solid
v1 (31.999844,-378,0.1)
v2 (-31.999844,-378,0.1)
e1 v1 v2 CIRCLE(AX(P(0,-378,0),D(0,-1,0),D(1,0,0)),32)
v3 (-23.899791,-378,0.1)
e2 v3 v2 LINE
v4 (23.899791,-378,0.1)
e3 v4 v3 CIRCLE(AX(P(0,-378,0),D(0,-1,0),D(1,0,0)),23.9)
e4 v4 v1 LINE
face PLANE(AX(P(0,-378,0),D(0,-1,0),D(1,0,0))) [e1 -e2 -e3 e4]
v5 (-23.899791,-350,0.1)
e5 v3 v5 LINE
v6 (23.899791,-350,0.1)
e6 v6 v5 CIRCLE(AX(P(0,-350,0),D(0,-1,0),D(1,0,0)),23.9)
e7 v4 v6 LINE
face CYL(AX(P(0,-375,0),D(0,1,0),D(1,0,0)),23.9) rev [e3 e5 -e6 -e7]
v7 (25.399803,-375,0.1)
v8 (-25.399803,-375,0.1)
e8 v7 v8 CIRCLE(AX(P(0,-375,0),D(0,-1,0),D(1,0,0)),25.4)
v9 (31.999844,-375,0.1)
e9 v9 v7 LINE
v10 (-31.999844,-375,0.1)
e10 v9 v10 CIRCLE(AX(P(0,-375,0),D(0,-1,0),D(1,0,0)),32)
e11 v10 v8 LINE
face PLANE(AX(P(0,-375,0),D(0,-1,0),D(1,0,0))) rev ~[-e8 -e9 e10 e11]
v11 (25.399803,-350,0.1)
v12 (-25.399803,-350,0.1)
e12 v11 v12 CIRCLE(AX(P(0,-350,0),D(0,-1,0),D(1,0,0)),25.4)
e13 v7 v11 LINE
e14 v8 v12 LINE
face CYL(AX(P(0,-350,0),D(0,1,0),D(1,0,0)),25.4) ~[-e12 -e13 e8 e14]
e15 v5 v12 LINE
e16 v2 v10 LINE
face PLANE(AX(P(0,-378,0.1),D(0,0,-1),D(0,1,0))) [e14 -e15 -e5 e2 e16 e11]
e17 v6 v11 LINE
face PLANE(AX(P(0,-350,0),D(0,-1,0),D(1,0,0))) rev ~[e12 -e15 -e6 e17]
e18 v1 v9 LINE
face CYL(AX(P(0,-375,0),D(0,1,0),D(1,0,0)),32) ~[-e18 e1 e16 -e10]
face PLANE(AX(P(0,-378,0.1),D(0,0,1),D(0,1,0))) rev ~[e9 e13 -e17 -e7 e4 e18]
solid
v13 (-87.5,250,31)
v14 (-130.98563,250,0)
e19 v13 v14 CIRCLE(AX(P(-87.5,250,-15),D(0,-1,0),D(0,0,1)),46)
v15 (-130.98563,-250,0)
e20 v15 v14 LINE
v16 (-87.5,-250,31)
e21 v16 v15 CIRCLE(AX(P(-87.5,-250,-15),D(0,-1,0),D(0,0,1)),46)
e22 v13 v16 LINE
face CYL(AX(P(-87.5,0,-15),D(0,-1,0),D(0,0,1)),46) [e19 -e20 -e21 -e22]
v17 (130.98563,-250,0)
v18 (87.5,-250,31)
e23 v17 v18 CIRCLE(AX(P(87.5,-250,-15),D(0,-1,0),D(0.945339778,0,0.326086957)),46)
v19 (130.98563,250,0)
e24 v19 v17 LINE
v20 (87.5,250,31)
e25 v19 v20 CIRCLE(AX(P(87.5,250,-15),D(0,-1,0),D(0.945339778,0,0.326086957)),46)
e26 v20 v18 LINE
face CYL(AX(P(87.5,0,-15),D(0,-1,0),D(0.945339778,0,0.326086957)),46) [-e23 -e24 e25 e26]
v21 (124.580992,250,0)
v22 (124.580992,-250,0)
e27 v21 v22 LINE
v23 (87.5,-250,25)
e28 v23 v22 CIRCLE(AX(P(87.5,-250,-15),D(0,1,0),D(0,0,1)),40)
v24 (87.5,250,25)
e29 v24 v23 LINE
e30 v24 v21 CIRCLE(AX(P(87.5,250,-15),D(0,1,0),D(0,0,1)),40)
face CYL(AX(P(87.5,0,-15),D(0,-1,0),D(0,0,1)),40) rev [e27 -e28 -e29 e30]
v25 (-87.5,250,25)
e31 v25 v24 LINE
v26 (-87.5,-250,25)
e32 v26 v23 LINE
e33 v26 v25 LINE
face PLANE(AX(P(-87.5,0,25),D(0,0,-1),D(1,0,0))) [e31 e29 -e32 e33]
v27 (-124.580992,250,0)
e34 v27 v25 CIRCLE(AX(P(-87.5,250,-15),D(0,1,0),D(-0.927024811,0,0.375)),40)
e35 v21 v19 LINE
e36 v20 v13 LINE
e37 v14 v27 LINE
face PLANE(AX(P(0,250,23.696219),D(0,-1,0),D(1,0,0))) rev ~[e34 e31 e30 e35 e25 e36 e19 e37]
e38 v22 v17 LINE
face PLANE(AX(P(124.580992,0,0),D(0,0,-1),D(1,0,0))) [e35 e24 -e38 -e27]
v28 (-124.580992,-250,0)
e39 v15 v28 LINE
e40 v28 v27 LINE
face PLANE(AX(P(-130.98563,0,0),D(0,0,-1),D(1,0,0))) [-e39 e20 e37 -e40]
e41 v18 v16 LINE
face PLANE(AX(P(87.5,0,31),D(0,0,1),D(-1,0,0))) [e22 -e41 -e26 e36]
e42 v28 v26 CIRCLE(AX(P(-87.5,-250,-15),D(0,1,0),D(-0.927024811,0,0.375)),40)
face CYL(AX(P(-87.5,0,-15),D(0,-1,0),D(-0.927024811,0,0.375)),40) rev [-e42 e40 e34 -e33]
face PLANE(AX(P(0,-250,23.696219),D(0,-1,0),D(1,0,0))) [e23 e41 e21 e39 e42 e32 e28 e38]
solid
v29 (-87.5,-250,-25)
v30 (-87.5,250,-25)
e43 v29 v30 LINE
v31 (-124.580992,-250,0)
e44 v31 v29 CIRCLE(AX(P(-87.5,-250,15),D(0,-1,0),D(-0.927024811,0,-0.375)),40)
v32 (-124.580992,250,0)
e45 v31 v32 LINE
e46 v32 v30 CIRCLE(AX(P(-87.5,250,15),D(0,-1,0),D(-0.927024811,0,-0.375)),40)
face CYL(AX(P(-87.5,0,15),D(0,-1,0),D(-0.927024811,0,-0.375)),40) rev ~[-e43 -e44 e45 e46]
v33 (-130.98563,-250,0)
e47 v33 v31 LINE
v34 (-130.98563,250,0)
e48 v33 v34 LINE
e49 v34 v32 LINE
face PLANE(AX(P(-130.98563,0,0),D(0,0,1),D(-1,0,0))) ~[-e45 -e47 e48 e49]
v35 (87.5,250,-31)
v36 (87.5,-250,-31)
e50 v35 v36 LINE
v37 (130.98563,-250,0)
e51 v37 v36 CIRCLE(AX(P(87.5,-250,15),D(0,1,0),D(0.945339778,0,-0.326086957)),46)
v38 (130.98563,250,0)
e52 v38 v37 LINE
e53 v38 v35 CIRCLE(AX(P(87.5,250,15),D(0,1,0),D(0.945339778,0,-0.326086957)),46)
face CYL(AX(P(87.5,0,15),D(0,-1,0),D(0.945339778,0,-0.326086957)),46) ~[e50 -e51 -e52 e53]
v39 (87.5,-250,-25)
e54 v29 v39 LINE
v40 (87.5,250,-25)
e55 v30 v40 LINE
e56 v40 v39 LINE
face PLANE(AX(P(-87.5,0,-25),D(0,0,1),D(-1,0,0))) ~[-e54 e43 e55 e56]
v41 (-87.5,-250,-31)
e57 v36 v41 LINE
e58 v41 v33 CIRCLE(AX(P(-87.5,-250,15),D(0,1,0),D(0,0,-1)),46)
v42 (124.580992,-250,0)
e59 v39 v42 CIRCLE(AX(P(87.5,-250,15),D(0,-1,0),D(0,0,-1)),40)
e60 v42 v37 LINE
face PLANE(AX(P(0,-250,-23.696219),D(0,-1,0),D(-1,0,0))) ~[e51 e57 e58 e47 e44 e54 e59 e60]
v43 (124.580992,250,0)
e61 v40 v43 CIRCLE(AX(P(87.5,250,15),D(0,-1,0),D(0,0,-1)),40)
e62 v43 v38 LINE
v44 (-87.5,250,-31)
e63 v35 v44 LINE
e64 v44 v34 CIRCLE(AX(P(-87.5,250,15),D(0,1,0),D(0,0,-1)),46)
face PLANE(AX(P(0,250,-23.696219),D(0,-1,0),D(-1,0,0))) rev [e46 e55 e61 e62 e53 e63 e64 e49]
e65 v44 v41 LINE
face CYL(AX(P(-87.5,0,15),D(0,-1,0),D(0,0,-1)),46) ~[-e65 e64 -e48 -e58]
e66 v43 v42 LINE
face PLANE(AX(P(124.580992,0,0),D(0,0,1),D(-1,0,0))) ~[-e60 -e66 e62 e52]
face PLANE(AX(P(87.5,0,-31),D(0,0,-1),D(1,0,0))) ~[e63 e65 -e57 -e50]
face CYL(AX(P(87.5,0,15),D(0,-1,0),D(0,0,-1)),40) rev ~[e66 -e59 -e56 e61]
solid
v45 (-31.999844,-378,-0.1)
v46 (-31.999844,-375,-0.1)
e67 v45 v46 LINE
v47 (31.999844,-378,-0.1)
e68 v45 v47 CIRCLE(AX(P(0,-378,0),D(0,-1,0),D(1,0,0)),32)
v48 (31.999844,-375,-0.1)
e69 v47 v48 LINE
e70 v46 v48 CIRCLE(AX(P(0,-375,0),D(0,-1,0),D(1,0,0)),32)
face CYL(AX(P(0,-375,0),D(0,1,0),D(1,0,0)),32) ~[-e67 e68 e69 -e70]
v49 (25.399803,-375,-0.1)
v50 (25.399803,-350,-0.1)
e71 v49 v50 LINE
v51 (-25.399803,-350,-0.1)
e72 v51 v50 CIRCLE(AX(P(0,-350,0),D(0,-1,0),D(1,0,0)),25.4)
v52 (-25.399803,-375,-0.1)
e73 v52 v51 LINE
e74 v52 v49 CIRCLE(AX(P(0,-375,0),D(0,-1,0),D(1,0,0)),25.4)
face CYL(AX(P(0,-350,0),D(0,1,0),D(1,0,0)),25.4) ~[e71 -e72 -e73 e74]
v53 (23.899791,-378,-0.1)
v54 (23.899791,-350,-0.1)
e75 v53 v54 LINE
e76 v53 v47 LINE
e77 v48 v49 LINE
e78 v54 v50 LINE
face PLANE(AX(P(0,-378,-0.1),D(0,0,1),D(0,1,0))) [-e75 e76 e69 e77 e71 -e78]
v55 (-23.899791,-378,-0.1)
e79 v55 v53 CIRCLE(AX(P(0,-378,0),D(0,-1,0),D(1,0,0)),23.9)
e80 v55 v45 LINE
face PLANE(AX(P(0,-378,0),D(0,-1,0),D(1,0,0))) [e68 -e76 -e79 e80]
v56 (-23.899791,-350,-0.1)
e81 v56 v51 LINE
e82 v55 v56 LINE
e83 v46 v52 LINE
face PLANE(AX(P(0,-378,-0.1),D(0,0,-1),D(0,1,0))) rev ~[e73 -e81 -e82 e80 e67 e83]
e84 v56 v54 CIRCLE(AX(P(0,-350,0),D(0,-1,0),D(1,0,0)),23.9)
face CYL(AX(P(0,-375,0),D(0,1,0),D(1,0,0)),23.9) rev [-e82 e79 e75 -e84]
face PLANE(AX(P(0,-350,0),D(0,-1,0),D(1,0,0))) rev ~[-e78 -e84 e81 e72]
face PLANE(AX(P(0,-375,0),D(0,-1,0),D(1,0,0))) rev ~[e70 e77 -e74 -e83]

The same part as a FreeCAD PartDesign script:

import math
import FreeCAD as App
import Part
import Sketcher
from FreeCAD import Vector


def add_polygon(sketch, points):
    """Adds a closed chain of lines whose ends are joined by coincident constraints."""
    first, n = sketch.GeometryCount, len(points)
    for a, b in zip(points, points[1:] + points[:1]):
        sketch.addGeometry(Part.LineSegment(App.Vector(*a, 0), App.Vector(*b, 0)), False)
    for i in range(n):
        sketch.addConstraint(Sketcher.Constraint("Coincident", first + i, 2, first + (i + 1) % n, 1))

doc = App.newDocument("Part")
body = doc.addObject("PartDesign::Body", "Body")

sketch1 = body.newObject("Sketcher::SketchObject", "Sketch")
sketch1.AttachmentSupport = (doc.getObject("XZ_Plane"), [""])
sketch1.MapMode = "FlatFace"
sketch1.addGeometry([
    Part.LineSegment(Vector(-88, 25, 0), Vector(88, 25, 0)),
    Part.ArcOfCircle(Part.Circle(Vector(88, -15, 0), Vector(0, 0, 1), 40), math.radians(22), math.radians(90)),
    Part.LineSegment(Vector(125, 0, 0), Vector(131, 0, 0)),
    Part.ArcOfCircle(Part.Circle(Vector(88, -15, 0), Vector(0, 0, 1), 46), math.radians(19), math.radians(90)),
    Part.LineSegment(Vector(88, 31, 0), Vector(-88, 31, 0)),
    Part.ArcOfCircle(Part.Circle(Vector(-88, -15, 0), Vector(0, 0, 1), 46), math.radians(90), math.radians(161)),
    Part.LineSegment(Vector(-131, 0, 0), Vector(-125, 0, 0)),
    Part.ArcOfCircle(Part.Circle(Vector(-88, -15, 0), Vector(0, 0, 1), 40), math.radians(90), math.radians(158)),
], False)
sketch1.addConstraint([
    Sketcher.Constraint("Tangent", 0, 2, 1, 2),
    Sketcher.Constraint("Coincident", 1, 1, 2, 1),
    Sketcher.Constraint("Coincident", 2, 2, 3, 1),
    Sketcher.Constraint("Tangent", 3, 2, 4, 1),
    Sketcher.Constraint("Tangent", 4, 2, 5, 1),
    Sketcher.Constraint("Coincident", 5, 2, 6, 1),
    Sketcher.Constraint("Coincident", 6, 2, 7, 2),
    Sketcher.Constraint("Tangent", 7, 1, 0, 1),
    Sketcher.Constraint("Horizontal", 0),
    Sketcher.Constraint("Horizontal", 2),
    Sketcher.Constraint("Horizontal", 4),
    Sketcher.Constraint("Horizontal", 6),
    Sketcher.Constraint("Coincident", 3, 3, 1, 3),
    Sketcher.Constraint("Coincident", 7, 3, 5, 3),
    Sketcher.Constraint("Equal", 3, 5),
    Sketcher.Constraint("Symmetric", 2, 2, 5, 2, -1, 1),
    Sketcher.Constraint("PointOnObject", 1, 1, -1),
    Sketcher.Constraint("Radius", 1, 40.0),
    Sketcher.Constraint("Radius", 3, 46.0),
    Sketcher.Constraint("DistanceX", 0, 1, 0, 2, 175.0),
    Sketcher.Constraint("DistanceY", 1, 3, -1, 1, 15.0),
])
pad1 = body.newObject("PartDesign::Pad", "Pad")
pad1.Profile = sketch1
pad1.Length = 500
pad1.Midplane = True
body2 = doc.addObject("PartDesign::Body", "Body001")
doc.recompute()

mirroring = doc.addObject("Part::Mirroring", "Mirroring")
mirroring.Source = body
mirroring.Base = Vector(-127.783311, 0, 0)
mirroring.Normal = Vector(0, 0, -1)
body2.BaseFeature = mirroring
doc.recompute()
body3 = doc.addObject("PartDesign::Body", "Body002")
body3.AllowCompound = True

sketch2 = body3.newObject("Sketcher::SketchObject", "Sketch001")
sketch2.AttachmentSupport = (doc.getObject("XZ_Plane002"), [""])
sketch2.MapMode = "FlatFace"
sketch2.AttachmentOffset = App.Placement(Vector(0, 0, 350), App.Rotation())
sketch2.addGeometry([
    Part.Circle(Vector(0, 0, 0), Vector(0, 0, 1), 25),
    Part.Circle(Vector(0, 0, 0), Vector(0, 0, 1), 24),
], False)
sketch2.addConstraint([
    Sketcher.Constraint("Coincident", 0, 3, -1, 1),
    Sketcher.Constraint("Coincident", 1, 3, -1, 1),
    Sketcher.Constraint("Diameter", 0, 50.8),
    Sketcher.Constraint("Diameter", 1, 47.8),
])
pad2 = body3.newObject("PartDesign::Pad", "Pad001")
pad2.Profile = sketch2
pad2.Length = 25

sketch3 = body3.newObject("Sketcher::SketchObject", "Sketch002")
sketch3.AttachmentSupport = (doc.getObject("XZ_Plane002"), [""])
sketch3.MapMode = "FlatFace"
sketch3.AttachmentOffset = App.Placement(Vector(0, 0, 375), App.Rotation())
sketch3.addGeometry([
    Part.Circle(Vector(0, 0, 0), Vector(0, 0, 1), 32),
    Part.Circle(Vector(0, 0, 0), Vector(0, 0, 1), 24),
], False)
sketch3.addConstraint([
    Sketcher.Constraint("Coincident", 0, 3, -1, 1),
    Sketcher.Constraint("Coincident", 1, 3, -1, 1),
    Sketcher.Constraint("Diameter", 0, 64.0),
    Sketcher.Constraint("Diameter", 1, 47.8),
])
pad3 = body3.newObject("PartDesign::Pad", "Pad002")
pad3.Profile = sketch3
pad3.Length = 3

sketch4 = body3.newObject("Sketcher::SketchObject", "Sketch003")
sketch4.AttachmentSupport = (doc.getObject("YZ_Plane002"), [""])
sketch4.MapMode = "FlatFace"
add_polygon(sketch4, [(-378, -0.1), (-350, -0.1), (-350, 0.1), (-378, 0.1)])
sketch4.addConstraint([
    Sketcher.Constraint("Horizontal", 0),
    Sketcher.Constraint("Vertical", 1),
    Sketcher.Constraint("Horizontal", 2),
    Sketcher.Constraint("Vertical", 3),
    Sketcher.Constraint("DistanceX", 0, 1, 0, 2, 28.0),
    Sketcher.Constraint("DistanceY", 1, 1, 1, 2, 0.2),
    Sketcher.Constraint("DistanceX", 0, 2, -1, 1, 350.0),
    Sketcher.Constraint("DistanceY", 0, 2, -1, 1, 0.1),
])
pocket1 = body3.newObject("PartDesign::Pocket", "Pocket")
pocket1.Profile = sketch4
pocket1.Type = "ThroughAll"
pocket1.Midplane = True
mirroring.Visibility = False

doc.recompute()
